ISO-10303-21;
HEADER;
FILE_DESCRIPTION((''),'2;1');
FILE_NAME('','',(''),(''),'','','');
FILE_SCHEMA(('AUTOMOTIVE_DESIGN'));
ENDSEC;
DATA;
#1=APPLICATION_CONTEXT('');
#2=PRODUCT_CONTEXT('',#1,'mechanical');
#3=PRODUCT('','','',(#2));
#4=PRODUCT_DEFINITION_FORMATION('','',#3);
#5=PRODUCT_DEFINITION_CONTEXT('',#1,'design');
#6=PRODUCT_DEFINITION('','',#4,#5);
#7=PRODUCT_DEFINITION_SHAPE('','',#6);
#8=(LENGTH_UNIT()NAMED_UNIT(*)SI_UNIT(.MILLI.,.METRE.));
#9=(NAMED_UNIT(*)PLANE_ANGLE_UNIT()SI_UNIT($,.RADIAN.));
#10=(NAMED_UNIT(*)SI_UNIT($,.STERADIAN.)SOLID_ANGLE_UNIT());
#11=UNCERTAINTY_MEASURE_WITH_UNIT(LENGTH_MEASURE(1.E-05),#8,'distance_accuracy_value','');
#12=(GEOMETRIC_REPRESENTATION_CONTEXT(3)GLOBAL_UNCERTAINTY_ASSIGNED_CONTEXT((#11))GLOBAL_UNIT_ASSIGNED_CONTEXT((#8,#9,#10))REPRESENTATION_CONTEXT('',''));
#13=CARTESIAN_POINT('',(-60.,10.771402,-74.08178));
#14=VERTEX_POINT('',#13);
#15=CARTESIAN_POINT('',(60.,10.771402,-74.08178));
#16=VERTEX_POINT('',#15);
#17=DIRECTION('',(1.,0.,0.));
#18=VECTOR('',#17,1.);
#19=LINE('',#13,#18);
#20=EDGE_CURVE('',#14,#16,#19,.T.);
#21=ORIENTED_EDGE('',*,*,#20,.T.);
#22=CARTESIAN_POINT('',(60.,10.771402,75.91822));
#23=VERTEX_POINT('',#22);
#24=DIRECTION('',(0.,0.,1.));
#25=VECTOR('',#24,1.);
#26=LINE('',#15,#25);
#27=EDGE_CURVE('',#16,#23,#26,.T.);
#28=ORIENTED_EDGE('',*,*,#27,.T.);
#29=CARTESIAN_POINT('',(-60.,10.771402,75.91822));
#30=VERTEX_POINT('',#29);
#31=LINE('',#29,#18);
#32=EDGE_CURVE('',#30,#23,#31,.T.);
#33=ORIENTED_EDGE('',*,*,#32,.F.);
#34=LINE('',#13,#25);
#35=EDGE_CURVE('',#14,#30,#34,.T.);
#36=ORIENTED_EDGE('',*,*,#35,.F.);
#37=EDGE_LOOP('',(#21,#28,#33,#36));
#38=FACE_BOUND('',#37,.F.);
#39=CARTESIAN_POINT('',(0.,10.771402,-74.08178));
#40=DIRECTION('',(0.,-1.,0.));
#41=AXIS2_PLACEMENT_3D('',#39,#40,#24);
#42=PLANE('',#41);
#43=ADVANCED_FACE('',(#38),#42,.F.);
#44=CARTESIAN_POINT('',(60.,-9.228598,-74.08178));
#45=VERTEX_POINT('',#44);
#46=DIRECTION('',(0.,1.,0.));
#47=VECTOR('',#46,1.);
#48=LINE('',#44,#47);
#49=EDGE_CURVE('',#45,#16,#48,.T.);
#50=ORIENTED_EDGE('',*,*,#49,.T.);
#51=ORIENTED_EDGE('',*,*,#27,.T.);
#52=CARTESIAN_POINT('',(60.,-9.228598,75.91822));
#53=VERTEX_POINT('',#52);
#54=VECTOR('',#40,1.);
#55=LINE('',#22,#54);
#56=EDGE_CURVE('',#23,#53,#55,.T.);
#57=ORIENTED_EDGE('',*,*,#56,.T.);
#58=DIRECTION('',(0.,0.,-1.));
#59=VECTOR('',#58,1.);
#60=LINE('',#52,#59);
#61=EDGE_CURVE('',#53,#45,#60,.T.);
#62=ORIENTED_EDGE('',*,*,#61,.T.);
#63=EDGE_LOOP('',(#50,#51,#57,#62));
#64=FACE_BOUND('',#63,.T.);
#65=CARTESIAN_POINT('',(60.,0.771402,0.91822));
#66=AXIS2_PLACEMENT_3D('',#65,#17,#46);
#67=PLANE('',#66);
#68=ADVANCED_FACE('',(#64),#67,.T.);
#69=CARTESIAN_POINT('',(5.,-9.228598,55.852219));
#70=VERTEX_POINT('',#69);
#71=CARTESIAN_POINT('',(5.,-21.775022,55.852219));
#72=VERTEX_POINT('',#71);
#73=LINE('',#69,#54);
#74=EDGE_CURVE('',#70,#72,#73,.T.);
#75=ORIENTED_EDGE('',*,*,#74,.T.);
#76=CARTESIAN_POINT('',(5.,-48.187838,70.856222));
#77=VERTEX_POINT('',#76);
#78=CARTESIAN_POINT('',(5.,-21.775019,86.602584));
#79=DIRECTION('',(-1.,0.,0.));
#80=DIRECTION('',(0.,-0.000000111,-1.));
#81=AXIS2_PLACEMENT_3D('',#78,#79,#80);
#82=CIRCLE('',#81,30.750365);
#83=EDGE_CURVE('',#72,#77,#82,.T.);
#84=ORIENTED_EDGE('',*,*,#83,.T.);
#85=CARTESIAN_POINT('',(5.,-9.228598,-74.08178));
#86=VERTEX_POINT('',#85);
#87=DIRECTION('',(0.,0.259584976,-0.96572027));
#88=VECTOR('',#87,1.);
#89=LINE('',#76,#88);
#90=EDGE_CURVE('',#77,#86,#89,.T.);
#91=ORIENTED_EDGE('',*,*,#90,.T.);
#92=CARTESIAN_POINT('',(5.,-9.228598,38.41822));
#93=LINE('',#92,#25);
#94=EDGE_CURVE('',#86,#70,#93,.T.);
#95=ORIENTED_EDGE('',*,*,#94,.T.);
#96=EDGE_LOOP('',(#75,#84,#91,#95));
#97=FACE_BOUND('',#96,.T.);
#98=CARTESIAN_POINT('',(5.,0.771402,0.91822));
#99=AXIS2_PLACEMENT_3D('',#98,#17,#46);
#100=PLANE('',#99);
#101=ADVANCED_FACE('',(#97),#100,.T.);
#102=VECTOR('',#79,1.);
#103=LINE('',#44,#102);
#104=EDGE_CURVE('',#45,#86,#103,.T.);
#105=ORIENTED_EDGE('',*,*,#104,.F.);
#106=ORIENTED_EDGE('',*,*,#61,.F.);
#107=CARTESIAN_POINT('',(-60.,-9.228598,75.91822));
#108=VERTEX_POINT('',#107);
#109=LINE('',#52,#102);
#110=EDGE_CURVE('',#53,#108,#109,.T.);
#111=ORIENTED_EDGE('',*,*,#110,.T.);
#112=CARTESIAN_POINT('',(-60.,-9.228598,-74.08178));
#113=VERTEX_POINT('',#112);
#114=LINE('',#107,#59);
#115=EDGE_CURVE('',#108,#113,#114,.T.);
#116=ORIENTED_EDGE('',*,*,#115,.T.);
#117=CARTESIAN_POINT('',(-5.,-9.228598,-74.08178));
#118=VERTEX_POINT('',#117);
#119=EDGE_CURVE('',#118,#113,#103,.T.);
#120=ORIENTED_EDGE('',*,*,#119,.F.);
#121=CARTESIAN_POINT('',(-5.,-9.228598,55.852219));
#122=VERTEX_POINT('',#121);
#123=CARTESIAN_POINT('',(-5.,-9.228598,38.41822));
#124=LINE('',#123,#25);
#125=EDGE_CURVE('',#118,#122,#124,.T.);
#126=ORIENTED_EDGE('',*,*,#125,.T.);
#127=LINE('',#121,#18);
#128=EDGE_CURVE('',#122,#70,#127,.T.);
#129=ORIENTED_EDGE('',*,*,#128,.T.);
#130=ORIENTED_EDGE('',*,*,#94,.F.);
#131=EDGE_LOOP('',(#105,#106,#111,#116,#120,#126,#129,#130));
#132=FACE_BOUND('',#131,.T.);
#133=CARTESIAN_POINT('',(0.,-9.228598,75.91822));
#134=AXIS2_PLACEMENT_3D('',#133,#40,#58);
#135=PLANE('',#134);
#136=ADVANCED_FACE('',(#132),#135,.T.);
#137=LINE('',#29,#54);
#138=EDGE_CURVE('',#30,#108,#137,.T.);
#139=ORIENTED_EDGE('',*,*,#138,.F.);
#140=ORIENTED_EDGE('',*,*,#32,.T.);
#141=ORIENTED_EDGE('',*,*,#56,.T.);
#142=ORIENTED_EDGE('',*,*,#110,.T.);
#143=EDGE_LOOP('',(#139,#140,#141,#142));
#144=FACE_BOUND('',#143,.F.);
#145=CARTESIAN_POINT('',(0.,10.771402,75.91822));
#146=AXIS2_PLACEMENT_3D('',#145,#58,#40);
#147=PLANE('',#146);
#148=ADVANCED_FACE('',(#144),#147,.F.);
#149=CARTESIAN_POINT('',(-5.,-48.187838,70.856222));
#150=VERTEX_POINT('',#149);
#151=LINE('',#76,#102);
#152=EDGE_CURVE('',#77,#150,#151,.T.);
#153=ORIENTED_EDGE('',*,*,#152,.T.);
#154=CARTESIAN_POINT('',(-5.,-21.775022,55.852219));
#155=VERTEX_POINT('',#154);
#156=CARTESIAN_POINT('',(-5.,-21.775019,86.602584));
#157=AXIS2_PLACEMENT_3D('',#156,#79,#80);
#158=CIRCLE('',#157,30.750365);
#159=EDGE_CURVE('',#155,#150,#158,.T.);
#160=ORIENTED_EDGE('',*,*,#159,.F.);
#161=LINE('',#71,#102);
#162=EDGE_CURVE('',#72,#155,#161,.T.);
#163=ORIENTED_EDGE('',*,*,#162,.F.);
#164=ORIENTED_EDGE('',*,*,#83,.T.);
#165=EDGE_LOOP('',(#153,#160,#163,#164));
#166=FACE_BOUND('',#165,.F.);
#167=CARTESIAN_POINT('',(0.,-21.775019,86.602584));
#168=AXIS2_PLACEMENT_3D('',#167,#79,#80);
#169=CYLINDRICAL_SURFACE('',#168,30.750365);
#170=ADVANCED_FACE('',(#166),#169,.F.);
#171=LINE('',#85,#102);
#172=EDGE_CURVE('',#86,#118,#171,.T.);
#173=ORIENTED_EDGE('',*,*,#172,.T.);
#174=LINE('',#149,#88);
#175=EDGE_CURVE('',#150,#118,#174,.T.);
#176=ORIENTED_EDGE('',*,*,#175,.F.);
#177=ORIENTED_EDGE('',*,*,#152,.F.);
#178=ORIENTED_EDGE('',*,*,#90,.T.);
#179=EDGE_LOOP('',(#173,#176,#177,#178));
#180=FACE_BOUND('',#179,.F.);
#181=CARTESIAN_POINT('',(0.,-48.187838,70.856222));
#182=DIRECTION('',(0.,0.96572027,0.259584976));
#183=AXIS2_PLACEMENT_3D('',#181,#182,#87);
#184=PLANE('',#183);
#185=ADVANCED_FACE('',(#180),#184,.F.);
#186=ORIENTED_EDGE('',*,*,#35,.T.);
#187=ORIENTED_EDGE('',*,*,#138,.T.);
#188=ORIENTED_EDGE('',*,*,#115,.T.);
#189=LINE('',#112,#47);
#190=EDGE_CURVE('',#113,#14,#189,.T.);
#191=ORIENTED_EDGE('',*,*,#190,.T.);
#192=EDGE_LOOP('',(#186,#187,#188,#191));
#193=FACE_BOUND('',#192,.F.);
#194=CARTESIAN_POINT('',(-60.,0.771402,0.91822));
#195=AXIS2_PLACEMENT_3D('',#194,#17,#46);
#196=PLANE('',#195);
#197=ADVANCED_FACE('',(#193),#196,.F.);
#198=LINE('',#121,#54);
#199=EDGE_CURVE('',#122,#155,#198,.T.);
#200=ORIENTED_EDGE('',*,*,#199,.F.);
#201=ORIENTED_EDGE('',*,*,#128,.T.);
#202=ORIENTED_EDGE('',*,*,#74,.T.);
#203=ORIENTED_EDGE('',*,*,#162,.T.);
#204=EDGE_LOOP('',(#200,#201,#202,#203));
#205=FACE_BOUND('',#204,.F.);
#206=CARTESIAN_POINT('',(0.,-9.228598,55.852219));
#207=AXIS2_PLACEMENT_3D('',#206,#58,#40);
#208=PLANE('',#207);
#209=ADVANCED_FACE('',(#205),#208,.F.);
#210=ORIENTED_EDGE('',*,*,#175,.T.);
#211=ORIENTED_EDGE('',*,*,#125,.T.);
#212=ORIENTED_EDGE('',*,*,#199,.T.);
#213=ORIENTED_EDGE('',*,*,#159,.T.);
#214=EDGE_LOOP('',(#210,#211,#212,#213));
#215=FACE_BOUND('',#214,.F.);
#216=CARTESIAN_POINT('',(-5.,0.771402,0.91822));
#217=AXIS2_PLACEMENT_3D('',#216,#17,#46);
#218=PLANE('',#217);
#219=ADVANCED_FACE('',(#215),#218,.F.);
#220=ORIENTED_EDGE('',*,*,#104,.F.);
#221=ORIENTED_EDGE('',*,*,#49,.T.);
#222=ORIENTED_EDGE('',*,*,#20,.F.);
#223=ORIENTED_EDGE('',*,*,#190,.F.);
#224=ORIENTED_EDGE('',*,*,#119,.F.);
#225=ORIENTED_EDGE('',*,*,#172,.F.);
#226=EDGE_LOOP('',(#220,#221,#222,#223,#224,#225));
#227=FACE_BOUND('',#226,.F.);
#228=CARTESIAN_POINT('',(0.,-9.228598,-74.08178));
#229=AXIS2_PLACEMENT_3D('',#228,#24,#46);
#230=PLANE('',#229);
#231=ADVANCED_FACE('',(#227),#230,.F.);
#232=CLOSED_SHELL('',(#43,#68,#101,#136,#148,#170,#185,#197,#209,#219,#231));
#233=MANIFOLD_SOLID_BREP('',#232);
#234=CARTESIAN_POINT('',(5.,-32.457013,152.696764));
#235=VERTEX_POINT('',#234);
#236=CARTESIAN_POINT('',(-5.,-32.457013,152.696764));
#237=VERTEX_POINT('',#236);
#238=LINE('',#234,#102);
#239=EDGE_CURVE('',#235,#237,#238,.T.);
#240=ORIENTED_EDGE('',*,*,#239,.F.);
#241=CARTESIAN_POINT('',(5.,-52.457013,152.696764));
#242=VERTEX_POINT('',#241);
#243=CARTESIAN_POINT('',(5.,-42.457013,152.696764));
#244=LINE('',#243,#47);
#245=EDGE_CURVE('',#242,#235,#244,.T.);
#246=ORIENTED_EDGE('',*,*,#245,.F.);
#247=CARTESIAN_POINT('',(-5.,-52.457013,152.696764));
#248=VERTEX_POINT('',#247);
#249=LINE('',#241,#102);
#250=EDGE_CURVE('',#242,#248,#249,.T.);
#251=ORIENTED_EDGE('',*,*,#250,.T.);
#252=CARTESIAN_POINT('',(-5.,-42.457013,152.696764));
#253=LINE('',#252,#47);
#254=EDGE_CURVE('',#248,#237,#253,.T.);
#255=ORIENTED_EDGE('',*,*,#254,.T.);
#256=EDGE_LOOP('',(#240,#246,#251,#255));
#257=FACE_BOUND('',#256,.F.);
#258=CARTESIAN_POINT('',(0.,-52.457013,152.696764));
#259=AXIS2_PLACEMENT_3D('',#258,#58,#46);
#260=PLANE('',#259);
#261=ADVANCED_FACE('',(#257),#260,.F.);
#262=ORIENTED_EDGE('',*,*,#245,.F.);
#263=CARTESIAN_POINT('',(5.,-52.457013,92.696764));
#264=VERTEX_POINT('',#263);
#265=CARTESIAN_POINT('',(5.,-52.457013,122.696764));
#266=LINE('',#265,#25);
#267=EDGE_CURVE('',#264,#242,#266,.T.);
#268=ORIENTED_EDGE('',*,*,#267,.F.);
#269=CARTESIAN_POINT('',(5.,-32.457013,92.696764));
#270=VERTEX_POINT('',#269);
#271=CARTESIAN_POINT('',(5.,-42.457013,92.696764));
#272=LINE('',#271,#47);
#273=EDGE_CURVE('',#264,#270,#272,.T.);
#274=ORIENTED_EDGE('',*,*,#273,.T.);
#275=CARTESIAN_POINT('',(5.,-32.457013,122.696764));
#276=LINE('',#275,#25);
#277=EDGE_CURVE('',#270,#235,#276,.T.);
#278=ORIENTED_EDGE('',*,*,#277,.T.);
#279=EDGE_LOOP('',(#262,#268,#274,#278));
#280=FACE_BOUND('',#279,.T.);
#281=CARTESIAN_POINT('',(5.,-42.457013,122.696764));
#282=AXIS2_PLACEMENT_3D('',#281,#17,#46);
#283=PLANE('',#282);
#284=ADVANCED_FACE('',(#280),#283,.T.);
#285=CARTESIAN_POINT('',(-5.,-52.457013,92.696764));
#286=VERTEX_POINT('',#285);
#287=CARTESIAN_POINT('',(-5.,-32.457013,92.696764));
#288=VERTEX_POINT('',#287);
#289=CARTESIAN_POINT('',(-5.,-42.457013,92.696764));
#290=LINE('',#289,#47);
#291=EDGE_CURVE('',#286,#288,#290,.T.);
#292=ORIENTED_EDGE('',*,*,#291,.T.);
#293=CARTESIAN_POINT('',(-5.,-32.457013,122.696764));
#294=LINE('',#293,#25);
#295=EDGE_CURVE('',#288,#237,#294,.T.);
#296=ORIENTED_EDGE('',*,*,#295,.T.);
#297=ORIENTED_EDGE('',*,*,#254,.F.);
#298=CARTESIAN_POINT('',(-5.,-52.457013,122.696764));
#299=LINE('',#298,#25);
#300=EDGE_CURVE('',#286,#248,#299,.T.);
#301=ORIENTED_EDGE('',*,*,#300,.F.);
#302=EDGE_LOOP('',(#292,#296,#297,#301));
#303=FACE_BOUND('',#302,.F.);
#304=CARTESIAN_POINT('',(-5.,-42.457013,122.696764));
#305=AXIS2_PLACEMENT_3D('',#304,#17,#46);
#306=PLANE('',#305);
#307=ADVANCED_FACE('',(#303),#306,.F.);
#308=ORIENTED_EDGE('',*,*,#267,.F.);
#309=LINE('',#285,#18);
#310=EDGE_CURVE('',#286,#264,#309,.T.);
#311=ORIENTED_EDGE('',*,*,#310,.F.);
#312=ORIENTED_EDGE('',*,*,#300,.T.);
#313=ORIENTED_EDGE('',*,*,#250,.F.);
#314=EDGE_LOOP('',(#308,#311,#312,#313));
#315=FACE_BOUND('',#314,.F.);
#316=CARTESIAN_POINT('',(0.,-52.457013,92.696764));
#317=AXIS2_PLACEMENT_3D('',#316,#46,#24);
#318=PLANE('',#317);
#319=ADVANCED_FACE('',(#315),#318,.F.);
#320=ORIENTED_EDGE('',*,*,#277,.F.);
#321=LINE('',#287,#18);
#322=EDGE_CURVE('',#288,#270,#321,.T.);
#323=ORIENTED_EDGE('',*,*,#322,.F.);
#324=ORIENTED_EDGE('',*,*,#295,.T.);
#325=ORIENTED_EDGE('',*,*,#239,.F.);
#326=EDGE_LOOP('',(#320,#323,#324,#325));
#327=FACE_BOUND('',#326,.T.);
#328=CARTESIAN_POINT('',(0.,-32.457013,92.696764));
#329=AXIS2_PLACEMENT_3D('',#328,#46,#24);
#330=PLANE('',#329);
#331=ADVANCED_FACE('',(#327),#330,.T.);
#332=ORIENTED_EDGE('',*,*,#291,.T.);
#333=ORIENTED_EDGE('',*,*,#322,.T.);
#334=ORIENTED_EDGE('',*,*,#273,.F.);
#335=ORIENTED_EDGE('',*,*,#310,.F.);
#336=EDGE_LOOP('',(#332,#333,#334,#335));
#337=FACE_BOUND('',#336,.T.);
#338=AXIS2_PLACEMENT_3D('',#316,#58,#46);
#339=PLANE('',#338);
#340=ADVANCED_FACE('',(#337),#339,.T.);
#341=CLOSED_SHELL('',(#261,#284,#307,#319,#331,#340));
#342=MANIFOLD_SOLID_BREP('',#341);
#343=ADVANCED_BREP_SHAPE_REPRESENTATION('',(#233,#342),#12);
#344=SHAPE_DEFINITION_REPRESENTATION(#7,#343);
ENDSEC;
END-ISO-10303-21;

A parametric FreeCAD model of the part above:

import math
import FreeCAD as App
import Part
import Sketcher

V = App.Vector


def add_polygon(sketch, points):
    """Adds a closed chain of lines whose ends are joined by coincident constraints."""
    first, n = sketch.GeometryCount, len(points)
    for a, b in zip(points, points[1:] + points[:1]):
        sketch.addGeometry(Part.LineSegment(App.Vector(*a, 0), App.Vector(*b, 0)), False)
    for i in range(n):
        sketch.addConstraint(Sketcher.Constraint("Coincident", first + i, 2, first + (i + 1) % n, 1))

doc = App.newDocument("Part")
body = doc.addObject("PartDesign::Body", "Body")
body.AllowCompound = True

sketch1 = body.newObject("Sketcher::SketchObject", "Sketch")
sketch1.AttachmentSupport = (doc.getObject("YZ_Plane"), [""])
sketch1.MapMode = "FlatFace"
add_polygon(sketch1, [(-9.228598, -74.08178), (10.771402, -74.08178), (10.771402, 75.91822), (-9.228598, 75.91822)])
sketch1.addConstraint(Sketcher.Constraint("Horizontal", 0))
sketch1.addConstraint(Sketcher.Constraint("Vertical", 1))
sketch1.addConstraint(Sketcher.Constraint("Horizontal", 2))
sketch1.addConstraint(Sketcher.Constraint("Vertical", 3))
sketch1.addConstraint(Sketcher.Constraint("DistanceX", 0, 1, 0, 2, 20.0))
sketch1.addConstraint(Sketcher.Constraint("DistanceY", 1, 1, 1, 2, 150.0))
sketch1.addConstraint(Sketcher.Constraint("DistanceY", 0, 2, -1, 1, 74.08178))
sketch1.addConstraint(Sketcher.Constraint("DistanceX", -1, 1, 0, 2, 10.771402))
pad1 = body.newObject("PartDesign::Pad", "Pad")
pad1.Profile = sketch1
pad1.Length = 120
pad1.Midplane = True

sketch2 = body.newObject("Sketcher::SketchObject", "Sketch001")
sketch2.AttachmentSupport = (doc.getObject("YZ_Plane"), [""])
sketch2.MapMode = "FlatFace"
sketch2.addGeometry(Part.LineSegment(V(-9.228598, -74.08178, 0), V(10.771402, -74.08178, 0)), False)
sketch2.addGeometry(Part.LineSegment(V(10.771402, -74.08178, 0), V(10.771402, 75.91822, 0)), False)
sketch2.addGeometry(Part.LineSegment(V(10.771402, 75.91822, 0), V(-9.228598, 75.91822, 0)), False)
sketch2.addGeometry(Part.LineSegment(V(-9.228598, 75.91822, 0), V(-9.228598, 55.852219, 0)), False)
sketch2.addGeometry(Part.LineSegment(V(-9.228598, 55.852219, 0), V(-21.775022, 55.852219, 0)), False)
sketch2.addGeometry(Part.ArcOfCircle(Part.Circle(V(-21.775019, 86.602584, 0), V(0, 0, 1), 30.750365), math.radians(-149.198141), math.radians(-90.000006)), False)
sketch2.addGeometry(Part.LineSegment(V(-48.187838, 70.856222, 0), V(-9.228598, -74.08178, 0)), False)
add_polygon(sketch2, [(-52.457013, 152.696764), (-52.457013, 92.696764), (-32.457013, 92.696764), (-32.457013, 152.696764)])
sketch2.addConstraint(Sketcher.Constraint("Coincident", 0, 2, 1, 1))
sketch2.addConstraint(Sketcher.Constraint("Coincident", 1, 2, 2, 1))
sketch2.addConstraint(Sketcher.Constraint("Coincident", 2, 2, 3, 1))
sketch2.addConstraint(Sketcher.Constraint("Coincident", 3, 2, 4, 1))
sketch2.addConstraint(Sketcher.Constraint("Tangent", 4, 2, 5, 2))
sketch2.addConstraint(Sketcher.Constraint("Coincident", 5, 1, 6, 1))
sketch2.addConstraint(Sketcher.Constraint("Coincident", 6, 2, 0, 1))
sketch2.addConstraint(Sketcher.Constraint("Horizontal", 0))
sketch2.addConstraint(Sketcher.Constraint("Vertical", 1))
sketch2.addConstraint(Sketcher.Constraint("Horizontal", 2))
sketch2.addConstraint(Sketcher.Constraint("Vertical", 3))
sketch2.addConstraint(Sketcher.Constraint("Horizontal", 4))
sketch2.addConstraint(Sketcher.Constraint("Vertical", 7))
sketch2.addConstraint(Sketcher.Constraint("Horizontal", 8))
sketch2.addConstraint(Sketcher.Constraint("Vertical", 9))
sketch2.addConstraint(Sketcher.Constraint("Horizontal", 10))
sketch2.addConstraint(Sketcher.Constraint("Vertical", 3, 2, 6, 2))
sketch2.addConstraint(Sketcher.Constraint("Equal", 2, 8))
sketch2.addConstraint(Sketcher.Constraint("DistanceX", 0, 1, 0, 2, 20.0))
sketch2.addConstraint(Sketcher.Constraint("DistanceY", 1, 1, 1, 2, 150.0))
sketch2.addConstraint(Sketcher.Constraint("DistanceY", 7, 2, 7, 1, 60.0))
sketch2.addConstraint(Sketcher.Constraint("DistanceY", 3, 2, 3, 1, 20.066001))
sketch2.addConstraint(Sketcher.Constraint("Radius", 5, 30.750365))
sketch2.addConstraint(Sketcher.Constraint("Distance", 6, 150.0828))
sketch2.addConstraint(Sketcher.Constraint("DistanceX", 4, 2, 4, 1, 12.546424))
sketch2.addConstraint(Sketcher.Constraint("DistanceX", 5, 3, -1, 1, 21.775019))
sketch2.addConstraint(Sketcher.Constraint("DistanceY", 0, 2, -1, 1, 74.08178))
sketch2.addConstraint(Sketcher.Constraint("DistanceY", 5, 1, 7, 2, 21.840542))
sketch2.addConstraint(Sketcher.Constraint("DistanceX", 7, 2, 4, 2, 30.681991))
pad2 = body.newObject("PartDesign::Pad", "Pad001")
pad2.Profile = sketch2
pad2.Length = 10
pad2.Midplane = True

doc.recompute()
